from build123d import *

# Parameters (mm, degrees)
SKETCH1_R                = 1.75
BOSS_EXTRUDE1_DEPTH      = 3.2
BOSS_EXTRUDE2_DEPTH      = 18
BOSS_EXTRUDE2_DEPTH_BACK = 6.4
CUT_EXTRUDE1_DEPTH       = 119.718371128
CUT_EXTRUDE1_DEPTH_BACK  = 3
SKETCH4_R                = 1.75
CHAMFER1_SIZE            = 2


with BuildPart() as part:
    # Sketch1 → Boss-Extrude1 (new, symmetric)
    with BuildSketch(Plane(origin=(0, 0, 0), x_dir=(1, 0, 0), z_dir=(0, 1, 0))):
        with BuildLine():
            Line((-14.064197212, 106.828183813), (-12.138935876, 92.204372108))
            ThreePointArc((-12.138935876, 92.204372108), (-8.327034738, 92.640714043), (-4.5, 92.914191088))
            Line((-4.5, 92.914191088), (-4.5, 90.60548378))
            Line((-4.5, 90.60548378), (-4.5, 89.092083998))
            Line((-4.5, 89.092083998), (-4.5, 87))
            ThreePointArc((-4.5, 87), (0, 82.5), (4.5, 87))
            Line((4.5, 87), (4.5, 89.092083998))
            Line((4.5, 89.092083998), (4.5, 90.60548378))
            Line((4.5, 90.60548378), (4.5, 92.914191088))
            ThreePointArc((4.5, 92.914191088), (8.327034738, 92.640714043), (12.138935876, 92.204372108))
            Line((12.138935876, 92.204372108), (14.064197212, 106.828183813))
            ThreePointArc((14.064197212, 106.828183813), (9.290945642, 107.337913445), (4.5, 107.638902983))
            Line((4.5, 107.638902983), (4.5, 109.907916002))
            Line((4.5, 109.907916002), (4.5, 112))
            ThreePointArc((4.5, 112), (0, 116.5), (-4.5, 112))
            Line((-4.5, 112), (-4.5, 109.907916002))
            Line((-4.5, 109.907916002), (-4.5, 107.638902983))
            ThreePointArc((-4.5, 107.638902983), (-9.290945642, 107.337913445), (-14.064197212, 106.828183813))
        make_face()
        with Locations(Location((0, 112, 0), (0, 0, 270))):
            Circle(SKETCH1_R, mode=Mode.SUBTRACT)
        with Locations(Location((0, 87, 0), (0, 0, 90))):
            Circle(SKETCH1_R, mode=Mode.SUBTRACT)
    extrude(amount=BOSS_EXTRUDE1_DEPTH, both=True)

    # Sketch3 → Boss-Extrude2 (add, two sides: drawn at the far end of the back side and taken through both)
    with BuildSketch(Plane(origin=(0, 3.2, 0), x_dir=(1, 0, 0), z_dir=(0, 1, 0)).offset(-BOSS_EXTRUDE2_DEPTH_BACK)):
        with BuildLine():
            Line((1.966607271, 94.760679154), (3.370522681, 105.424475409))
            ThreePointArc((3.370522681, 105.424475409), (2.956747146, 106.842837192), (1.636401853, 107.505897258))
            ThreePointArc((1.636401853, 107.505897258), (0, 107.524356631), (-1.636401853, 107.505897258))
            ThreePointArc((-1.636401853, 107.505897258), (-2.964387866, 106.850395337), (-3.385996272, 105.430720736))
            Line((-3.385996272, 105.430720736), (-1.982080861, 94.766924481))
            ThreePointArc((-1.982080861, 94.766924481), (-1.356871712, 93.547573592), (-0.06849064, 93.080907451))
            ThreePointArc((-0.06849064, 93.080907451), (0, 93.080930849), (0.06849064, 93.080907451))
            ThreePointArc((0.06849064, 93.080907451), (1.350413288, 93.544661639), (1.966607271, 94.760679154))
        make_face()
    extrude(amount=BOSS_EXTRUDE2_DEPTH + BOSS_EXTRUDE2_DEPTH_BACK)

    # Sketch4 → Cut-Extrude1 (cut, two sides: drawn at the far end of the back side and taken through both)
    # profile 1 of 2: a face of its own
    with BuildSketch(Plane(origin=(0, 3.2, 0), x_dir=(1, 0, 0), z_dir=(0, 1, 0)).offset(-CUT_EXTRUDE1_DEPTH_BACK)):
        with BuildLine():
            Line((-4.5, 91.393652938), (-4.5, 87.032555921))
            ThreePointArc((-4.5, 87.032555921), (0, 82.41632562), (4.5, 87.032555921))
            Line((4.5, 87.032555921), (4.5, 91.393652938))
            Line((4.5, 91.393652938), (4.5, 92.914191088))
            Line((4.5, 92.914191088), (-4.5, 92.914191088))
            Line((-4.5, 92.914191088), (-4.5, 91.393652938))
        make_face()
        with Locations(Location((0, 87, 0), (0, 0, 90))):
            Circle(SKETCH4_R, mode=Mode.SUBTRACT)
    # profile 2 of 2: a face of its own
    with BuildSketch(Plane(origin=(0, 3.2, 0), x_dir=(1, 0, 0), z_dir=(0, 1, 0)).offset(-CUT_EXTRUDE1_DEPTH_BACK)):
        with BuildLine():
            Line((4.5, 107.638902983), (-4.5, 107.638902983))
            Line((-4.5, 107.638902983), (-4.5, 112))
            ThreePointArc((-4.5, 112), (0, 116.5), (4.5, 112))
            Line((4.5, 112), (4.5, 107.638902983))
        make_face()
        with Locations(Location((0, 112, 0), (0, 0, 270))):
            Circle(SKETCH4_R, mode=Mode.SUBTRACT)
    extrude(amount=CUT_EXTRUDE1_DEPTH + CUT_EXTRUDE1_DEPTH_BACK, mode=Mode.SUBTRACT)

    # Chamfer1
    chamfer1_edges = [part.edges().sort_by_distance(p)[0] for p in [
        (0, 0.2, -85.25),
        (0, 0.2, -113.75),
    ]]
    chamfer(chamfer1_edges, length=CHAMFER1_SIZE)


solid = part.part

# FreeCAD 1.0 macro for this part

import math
import FreeCAD as App
import Part
import Sketcher

V = App.Vector
Q = App.Units.Quantity


def edges_at(feature, points):
    """Names of the edges that pass closest to the given points."""
    edges = feature.Shape.Edges
    near = lambda p: min(range(len(edges)), key=lambda i: edges[i].distToShape(Part.Vertex(*p))[0])
    return sorted({f"Edge{near(p) + 1}" for p in points})

doc = App.newDocument("Part")
body = doc.addObject("PartDesign::Body", "Body")

# Sketch on XZ plane
sketch1 = doc.addObject("Sketcher::SketchObject", "Sketch")
body.addObject(sketch1)
sketch1.AttachmentSupport = (doc.XZ_Plane, [""])
sketch1.MapMode = "FlatFace"
sketch1.addGeometry([
    Part.LineSegment(V(-14.1, -106.8, 0), V(-12.1, -92.2, 0)),  # 0
    Part.ArcOfCircle(Part.Circle(V(0, -3, 0), V(0, 0, 1), 90), math.radians(-97.75), math.radians(-92.87)),  # 1
    Part.LineSegment(V(-4.5, -92.9, 0), V(-4.5, -87, 0)),  # 2
    Part.ArcOfCircle(Part.Circle(V(0, -87, 0), V(0, 0, 1), 4.5), math.radians(0), math.radians(180)),  # 3
    Part.LineSegment(V(4.5, -87, 0), V(4.5, -92.9, 0)),  # 4
    Part.ArcOfCircle(Part.Circle(V(0, -3, 0), V(0, 0, 1), 90), math.radians(-87.13), math.radians(-82.25)),  # 5
    Part.LineSegment(V(12.1, -92.2, 0), V(14.1, -106.8, 0)),  # 6
    Part.ArcOfCircle(Part.Circle(V(0, 2.3, 0), V(0, 0, 1), 110), math.radians(-87.66), math.radians(-82.65)),  # 7
    Part.LineSegment(V(4.5, -107.6, 0), V(4.5, -112, 0)),  # 8
    Part.ArcOfCircle(Part.Circle(V(0, -112, 0), V(0, 0, 1), 4.5), math.radians(180), math.radians(360)),  # 9
    Part.LineSegment(V(-4.5, -112, 0), V(-4.5, -107.6, 0)),  # 10
    Part.ArcOfCircle(Part.Circle(V(0, 2.3, 0), V(0, 0, 1), 110), math.radians(-97.35), math.radians(-92.34)),  # 11
    Part.Circle(V(0, -87, 0), V(0, 0, 1), 1.8),  # 12
    Part.Circle(V(0, -112, 0), V(0, 0, 1), 1.8),  # 13
], False)
sketch1.addConstraint([
    Sketcher.Constraint("Coincident", 0, 2, 1, 1),
    Sketcher.Constraint("Coincident", 1, 2, 2, 1),
    Sketcher.Constraint("Tangent", 2, 2, 3, 2),
    Sketcher.Constraint("Tangent", 3, 1, 4, 1),
    Sketcher.Constraint("Coincident", 4, 2, 5, 1),
    Sketcher.Constraint("Coincident", 5, 2, 6, 1),
    Sketcher.Constraint("Coincident", 6, 2, 7, 2),
    Sketcher.Constraint("Coincident", 7, 1, 8, 1),
    Sketcher.Constraint("Tangent", 8, 2, 9, 2),
    Sketcher.Constraint("Tangent", 9, 1, 10, 1),
    Sketcher.Constraint("Coincident", 10, 2, 11, 2),
    Sketcher.Constraint("Coincident", 11, 1, 0, 1),
    Sketcher.Constraint("Vertical", 2),
    Sketcher.Constraint("Vertical", 4),
    Sketcher.Constraint("Vertical", 8),
    Sketcher.Constraint("Vertical", 10),
    Sketcher.Constraint("Coincident", 5, 3, 1, 3),
    Sketcher.Constraint("Coincident", 11, 3, 7, 3),
    Sketcher.Constraint("Coincident", 12, 3, 3, 3),
    Sketcher.Constraint("Coincident", 13, 3, 9, 3),
    Sketcher.Constraint("Equal", 1, 5),
    Sketcher.Constraint("Equal", 3, 9),
    Sketcher.Constraint("Equal", 7, 11),
    Sketcher.Constraint("Equal", 12, 13),
    Sketcher.Constraint("Symmetric", 1, 2, 4, 2, -2),
    Sketcher.Constraint("Symmetric", 7, 1, 10, 2, -2),
    Sketcher.Constraint("Horizontal", 0, 2, 5, 2),
    Sketcher.Constraint("Horizontal", 6, 2, 11, 1),
    Sketcher.Constraint("Radius", 1, Q("90 mm")),
    Sketcher.Constraint("Radius", 7, Q("110 mm")),
    Sketcher.Constraint("Diameter", 12, Q("3.5 mm")),
    Sketcher.Constraint("Radius", 3, Q("4.5 mm")),
    Sketcher.Constraint("DistanceY", 3, 3, -1, 1, Q("87 mm")),
    Sketcher.Constraint("DistanceY", 9, 3, -1, 1, Q("112 mm")),
    Sketcher.Constraint("Angle", 0, Q("82.5 deg")),
    Sketcher.Constraint("Distance", 0, Q("14.75 mm")),
    Sketcher.Constraint("DistanceY", 2, 1, 2, 2, Q("5.914191 mm")),
    Sketcher.Constraint("DistanceY", 8, 2, 8, 1, Q("4.361097 mm")),
])
pad1 = doc.addObject("PartDesign::Pad", "Pad")
body.addObject(pad1)
pad1.Profile = sketch1
pad1.Length = 6.4
pad1.Midplane = True

# Sketch on XZ plane
sketch2 = doc.addObject("Sketcher::SketchObject", "Sketch001")
body.addObject(sketch2)
sketch2.AttachmentSupport = (doc.XZ_Plane, [""])
sketch2.MapMode = "FlatFace"
sketch2.AttachmentOffset = App.Placement(V(0, 0, -3.2), App.Rotation())
sketch2.addGeometry([
    Part.LineSegment(V(1.97, -94.76, 0), V(3.37, -105.42, 0)),  # 0
    Part.ArcOfCircle(Part.Circle(V(1.54, -105.66, 0), V(0, 0, 1), 1.85), math.radians(-87), math.radians(7)),  # 1
    Part.ArcOfCircle(Part.Circle(V(0, -34.98, 0), V(0, 0, 1), 72.54), math.radians(-91.29), math.radians(-88.71)),  # 2
    Part.ArcOfCircle(Part.Circle(V(-1.55, -105.66, 0), V(0, 0, 1), 1.85), math.radians(173), math.radians(267)),  # 3
    Part.LineSegment(V(-3.39, -105.43, 0), V(-1.98, -94.77, 0)),  # 4
    Part.ArcOfCircle(Part.Circle(V(-0.12, -94.95, 0), V(0, 0, 1), 1.87), math.radians(88), math.radians(174)),  # 5
    Part.ArcOfCircle(Part.Circle(V(0, 7.16, 0), V(0, 0, 1), 100.24), math.radians(-90.04), math.radians(-89.96)),  # 6
    Part.ArcOfCircle(Part.Circle(V(0.12, -94.93, 0), V(0, 0, 1), 1.85), math.radians(5), math.radians(92)),  # 7
], False)
sketch2.addConstraint([
    Sketcher.Constraint("Coincident", 0, 2, 1, 2),
    Sketcher.Constraint("Coincident", 1, 1, 2, 2),
    Sketcher.Constraint("Coincident", 2, 1, 3, 2),
    Sketcher.Constraint("Coincident", 3, 1, 4, 1),
    Sketcher.Constraint("Coincident", 4, 2, 5, 2),
    Sketcher.Constraint("Coincident", 5, 1, 6, 1),
    Sketcher.Constraint("Coincident", 6, 2, 7, 2),
    Sketcher.Constraint("Coincident", 7, 1, 0, 1),
    Sketcher.Constraint("Equal", 1, 3),
    Sketcher.Constraint("Equal", 3, 7),
    Sketcher.Constraint("Symmetric", 1, 1, 2, 1, -2),
    Sketcher.Constraint("PointOnObject", 6, 3, -2),
    Sketcher.Constraint("Equal", 0, 4),
    Sketcher.Constraint("Radius", 1, Q("1.85 mm")),
    Sketcher.Constraint("Angle", 0, Q("-82.5 deg")),
    Sketcher.Constraint("Angle", 4, Q("82.5 deg")),
    Sketcher.Constraint("DistanceX", 3, 3, -1, 1, Q("1.55 mm")),
    Sketcher.Constraint("DistanceY", 5, 3, -1, 1, Q("94.952 mm")),
    Sketcher.Constraint("Radius", 2, Q("72.541786 mm")),
    Sketcher.Constraint("Radius", 5, Q("1.871787 mm")),
    Sketcher.Constraint("Radius", 6, Q("100.242934 mm")),
    Sketcher.Constraint("DistanceX", -1, 1, 1, 1, Q("1.636402 mm")),
    Sketcher.Constraint("DistanceX", 3, 1, 1, 3, Q("4.921401 mm")),
    Sketcher.Constraint("DistanceX", 3, 1, 1, 1, Q("5.022398 mm")),
    Sketcher.Constraint("DistanceY", 2, 3, -1, 1, Q("34.982571 mm")),
    Sketcher.Constraint("DistanceX", 4, 2, -1, 1, Q("1.982081 mm")),
    Sketcher.Constraint("DistanceX", 5, 1, -1, 1, Q("0.068491 mm")),
    Sketcher.Constraint("DistanceX", -1, 1, 6, 2, Q("0.068491 mm")),
    Sketcher.Constraint("DistanceY", 7, 1, -1, 1, Q("94.760679 mm")),
])
pad2 = doc.addObject("PartDesign::Pad", "Pad001")
body.addObject(pad2)
pad2.Profile = sketch2
pad2.Type = "TwoLengths"
pad2.Length = 18
pad2.Length2 = 6.4
pad2.Reversed = True

# Sketch on XZ plane
sketch3 = doc.addObject("Sketcher::SketchObject", "Sketch002")
body.addObject(sketch3)
sketch3.AttachmentSupport = (doc.XZ_Plane, [""])
sketch3.MapMode = "FlatFace"
sketch3.AttachmentOffset = App.Placement(V(0, 0, -3.2), App.Rotation())
sketch3.addGeometry([
    Part.ArcOfCircle(Part.Circle(V(0, -86.9, 0), V(0, 0, 1), 4.5), math.radians(-1), math.radians(181)),  # 0
    Part.LineSegment(V(4.5, -87, 0), V(4.5, -92.9, 0)),  # 1
    Part.LineSegment(V(4.5, -92.9, 0), V(-4.5, -92.9, 0)),  # 2
    Part.LineSegment(V(-4.5, -92.9, 0), V(-4.5, -87, 0)),  # 3
    Part.Circle(V(0, -87, 0), V(0, 0, 1), 1.8),  # 4
    Part.LineSegment(V(-4.5, -107.6, 0), V(4.5, -107.6, 0)),  # 5
    Part.LineSegment(V(4.5, -107.6, 0), V(4.5, -112, 0)),  # 6
    Part.ArcOfCircle(Part.Circle(V(0, -112, 0), V(0, 0, 1), 4.5), math.radians(180), math.radians(360)),  # 7
    Part.LineSegment(V(-4.5, -112, 0), V(-4.5, -107.6, 0)),  # 8
    Part.Circle(V(0, -112, 0), V(0, 0, 1), 1.8),  # 9
], False)
sketch3.addConstraint([
    Sketcher.Constraint("Coincident", 0, 1, 1, 1),
    Sketcher.Constraint("Coincident", 1, 2, 2, 1),
    Sketcher.Constraint("Coincident", 2, 2, 3, 1),
    Sketcher.Constraint("Coincident", 3, 2, 0, 2),
    Sketcher.Constraint("Coincident", 5, 2, 6, 1),
    Sketcher.Constraint("Tangent", 6, 2, 7, 2),
    Sketcher.Constraint("Tangent", 7, 1, 8, 1),
    Sketcher.Constraint("Coincident", 8, 2, 5, 1),
    Sketcher.Constraint("Vertical", 1),
    Sketcher.Constraint("Horizontal", 2),
    Sketcher.Constraint("Vertical", 3),
    Sketcher.Constraint("Horizontal", 5),
    Sketcher.Constraint("Vertical", 6),
    Sketcher.Constraint("Vertical", 8),
    Sketcher.Constraint("Coincident", 9, 3, 7, 3),
    Sketcher.Constraint("Equal", 4, 9),
    Sketcher.Constraint("Symmetric", 0, 1, 3, 2, -2),
    Sketcher.Constraint("PointOnObject", 4, 3, -2),
    Sketcher.Constraint("PointOnObject", 7, 3, -2),
    Sketcher.Constraint("Vertical", 1, 2, 5, 2),
    Sketcher.Constraint("Diameter", 4, Q("3.5 mm")),
    Sketcher.Constraint("Radius", 7, Q("4.5 mm")),
    Sketcher.Constraint("DistanceY", 4, 3, -1, 1, Q("87 mm")),
    Sketcher.Constraint("DistanceY", 7, 3, -1, 1, Q("112 mm")),
    Sketcher.Constraint("Radius", 0, Q("4.501463 mm")),
    Sketcher.Constraint("DistanceY", 1, 2, 1, 1, Q("5.881635 mm")),
    Sketcher.Constraint("DistanceY", 6, 2, 6, 1, Q("4.361097 mm")),
    Sketcher.Constraint("DistanceY", 0, 3, -1, 1, Q("86.917789 mm")),
])
pocket1 = doc.addObject("PartDesign::Pocket", "Pocket")
body.addObject(pocket1)
pocket1.Profile = sketch3
pocket1.Type = "TwoLengths"
pocket1.Length = 119.718371
pocket1.Length2 = 3
doc.recompute()

chamfer = doc.addObject("PartDesign::Chamfer", "Chamfer")
body.addObject(chamfer)
chamfer.Base = (pocket1, edges_at(pocket1, [(0, 0.2, -85.25), (0, 0.2, -113.75)]))
chamfer.Size = 2

doc.recompute()
